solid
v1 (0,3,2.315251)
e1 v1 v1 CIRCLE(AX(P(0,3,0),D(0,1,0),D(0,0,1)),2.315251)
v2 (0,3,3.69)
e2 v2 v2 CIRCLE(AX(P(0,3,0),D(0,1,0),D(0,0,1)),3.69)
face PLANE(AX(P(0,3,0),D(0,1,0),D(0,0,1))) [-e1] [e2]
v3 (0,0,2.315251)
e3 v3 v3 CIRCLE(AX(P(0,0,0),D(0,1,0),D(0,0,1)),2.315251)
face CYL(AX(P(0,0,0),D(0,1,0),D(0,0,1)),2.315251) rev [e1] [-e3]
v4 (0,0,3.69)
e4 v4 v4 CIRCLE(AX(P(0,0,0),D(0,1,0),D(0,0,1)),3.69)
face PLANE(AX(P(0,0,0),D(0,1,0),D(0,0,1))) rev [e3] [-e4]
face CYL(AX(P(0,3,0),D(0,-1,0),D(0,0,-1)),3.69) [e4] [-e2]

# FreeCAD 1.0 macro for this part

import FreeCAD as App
import Part
import Sketcher

doc = App.newDocument("Part")
params = doc.addObject("Spreadsheet::Sheet", "Params")
for row, (alias, value) in enumerate([
    ("sketch1_diameter", "7.38 mm"),
    ("pad1_length", "3 mm"),
    ("pocket1_length", "3 mm"),
    ("pocket2_length", "3 mm"),
], start=1):
    params.set(f"A{row}", alias)
    params.set(f"B{row}", "=" + value)
    params.setAlias(f"B{row}", alias)

body = doc.addObject("PartDesign::Body", "Body")

# Sketch on XZ plane
sketch1 = body.newObject("Sketcher::SketchObject", "Sketch")
sketch1.AttachmentSupport = (doc.getObject("XZ_Plane"), [""])
sketch1.MapMode = "FlatFace"
sketch1.addGeometry(Part.Circle(App.Vector(0, 0, 0), App.Vector(0, 0, 1), 3.7), False)
sketch1.addConstraint([
    Sketcher.Constraint("Coincident", 0, 3, -1, 1),
    Sketcher.Constraint("Diameter", 0, 7.38),
])
sketch1.setExpression("Constraints[1]", "Params.sketch1_diameter")
pad1 = body.newObject("PartDesign::Pad", "Pad")
pad1.Profile = sketch1
pad1.setExpression("Length", "Params.pad1_length")
pad1.Reversed = True

# Sketch on XZ plane
sketch2 = body.newObject("Sketcher::SketchObject", "Sketch001")
sketch2.AttachmentSupport = (doc.getObject("XZ_Plane"), [""])
sketch2.MapMode = "FlatFace"
sketch2.AttachmentOffset = App.Placement(App.Vector(0, 0, -3), App.Rotation())
sketch2.addGeometry(Part.Circle(App.Vector(0, 0, 0), App.Vector(0, 0, 1), 2), False)
sketch2.addConstraint([
    Sketcher.Constraint("Coincident", 0, 3, -1, 1),
    Sketcher.Constraint("Diameter", 0, 4.013041),
])
pocket1 = body.newObject("PartDesign::Pocket", "Pocket")
pocket1.Profile = sketch2
pocket1.setExpression("Length", "Params.pocket1_length")
pocket1.Reversed = True

# Sketch on XZ plane
sketch3 = body.newObject("Sketcher::SketchObject", "Sketch002")
sketch3.AttachmentSupport = (doc.getObject("XZ_Plane"), [""])
sketch3.MapMode = "FlatFace"
sketch3.AttachmentOffset = App.Placement(App.Vector(0, 0, -3), App.Rotation())
sketch3.addGeometry(Part.Circle(App.Vector(0, 0, 0), App.Vector(0, 0, 1), 2.3), False)
sketch3.addConstraint([
    Sketcher.Constraint("Coincident", 0, 3, -1, 1),
    Sketcher.Constraint("Diameter", 0, 4.630502),
])
pocket2 = body.newObject("PartDesign::Pocket", "Pocket001")
pocket2.Profile = sketch3
pocket2.setExpression("Length", "Params.pocket2_length")
pocket2.Reversed = True

doc.recompute()
